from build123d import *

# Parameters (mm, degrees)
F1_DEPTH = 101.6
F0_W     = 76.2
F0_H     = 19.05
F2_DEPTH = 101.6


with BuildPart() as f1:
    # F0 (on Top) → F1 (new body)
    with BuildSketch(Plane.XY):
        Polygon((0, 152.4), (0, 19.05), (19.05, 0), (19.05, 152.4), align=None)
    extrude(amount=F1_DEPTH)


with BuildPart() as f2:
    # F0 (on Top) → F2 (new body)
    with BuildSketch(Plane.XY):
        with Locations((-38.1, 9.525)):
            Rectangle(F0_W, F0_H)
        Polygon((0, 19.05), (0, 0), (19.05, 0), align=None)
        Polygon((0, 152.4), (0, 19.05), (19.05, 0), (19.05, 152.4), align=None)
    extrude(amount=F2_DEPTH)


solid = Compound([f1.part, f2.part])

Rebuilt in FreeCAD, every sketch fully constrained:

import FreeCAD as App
import Part
import Sketcher

V = App.Vector
Q = App.Units.Quantity


def add_polygon(sketch, points):
    """Adds a closed chain of lines whose ends are joined by coincident constraints."""
    first, n = sketch.GeometryCount, len(points)
    for a, b in zip(points, points[1:] + points[:1]):
        sketch.addGeometry(Part.LineSegment(App.Vector(*a, 0), App.Vector(*b, 0)), False)
    for i in range(n):
        sketch.addConstraint(Sketcher.Constraint("Coincident", first + i, 2, first + (i + 1) % n, 1))

doc = App.newDocument("Part")
body = doc.addObject("PartDesign::Body", "Body")

# Sketch on XY plane
sketch1 = body.newObject("Sketcher::SketchObject", "Sketch")
sketch1.AttachmentSupport = (doc.getObject("XY_Plane"), [""])
sketch1.MapMode = "FlatFace"
add_polygon(sketch1, [(0, 152), (0, 19), (19, 0), (19, 152)])  # lines 0-3
sketch1.addConstraint(Sketcher.Constraint("Vertical", 0))
sketch1.addConstraint(Sketcher.Constraint("Vertical", 2))
sketch1.addConstraint(Sketcher.Constraint("Horizontal", 3))
sketch1.addConstraint(Sketcher.Constraint("PointOnObject", 0, 2, -2))
sketch1.addConstraint(Sketcher.Constraint("PointOnObject", 1, 2, -1))
sketch1.addConstraint(Sketcher.Constraint("DistanceY", 2, 1, 2, 2, Q("6 in")))
sketch1.addConstraint(Sketcher.Constraint("Angle", 1, Q("-45 deg")))
sketch1.addConstraint(Sketcher.Constraint("DistanceX", 3, 2, 3, 1, Q("0.75 in")))
pad1 = body.newObject("PartDesign::Pad", "Pad")
pad1.Profile = sketch1
pad1.Length = Q("4 in")
body2 = doc.addObject("PartDesign::Body", "Body001")

# Sketch on XY plane
sketch2 = body2.newObject("Sketcher::SketchObject", "Sketch001")
sketch2.AttachmentSupport = (doc.getObject("XY_Plane001"), [""])
sketch2.MapMode = "FlatFace"
add_polygon(sketch2, [(-76, 19), (-76, 0), (19, 0), (19, 152), (0, 152), (0, 19)])  # lines 0-5
sketch2.addConstraint(Sketcher.Constraint("Vertical", 0))
sketch2.addConstraint(Sketcher.Constraint("Horizontal", 1))
sketch2.addConstraint(Sketcher.Constraint("Vertical", 2))
sketch2.addConstraint(Sketcher.Constraint("Horizontal", 3))
sketch2.addConstraint(Sketcher.Constraint("Vertical", 4))
sketch2.addConstraint(Sketcher.Constraint("Horizontal", 5))
sketch2.addConstraint(Sketcher.Constraint("PointOnObject", 0, 2, -1))
sketch2.addConstraint(Sketcher.Constraint("PointOnObject", 3, 2, -2))
sketch2.addConstraint(Sketcher.Constraint("Equal", 3, 0))
sketch2.addConstraint(Sketcher.Constraint("DistanceX", 5, 2, 5, 1, Q("3 in")))
sketch2.addConstraint(Sketcher.Constraint("DistanceY", 2, 1, 2, 2, Q("6 in")))
sketch2.addConstraint(Sketcher.Constraint("DistanceX", 1, 1, 1, 2, Q("3.75 in")))
pad2 = body2.newObject("PartDesign::Pad", "Pad001")
pad2.Profile = sketch2
pad2.Length = Q("4 in")

doc.recompute()
